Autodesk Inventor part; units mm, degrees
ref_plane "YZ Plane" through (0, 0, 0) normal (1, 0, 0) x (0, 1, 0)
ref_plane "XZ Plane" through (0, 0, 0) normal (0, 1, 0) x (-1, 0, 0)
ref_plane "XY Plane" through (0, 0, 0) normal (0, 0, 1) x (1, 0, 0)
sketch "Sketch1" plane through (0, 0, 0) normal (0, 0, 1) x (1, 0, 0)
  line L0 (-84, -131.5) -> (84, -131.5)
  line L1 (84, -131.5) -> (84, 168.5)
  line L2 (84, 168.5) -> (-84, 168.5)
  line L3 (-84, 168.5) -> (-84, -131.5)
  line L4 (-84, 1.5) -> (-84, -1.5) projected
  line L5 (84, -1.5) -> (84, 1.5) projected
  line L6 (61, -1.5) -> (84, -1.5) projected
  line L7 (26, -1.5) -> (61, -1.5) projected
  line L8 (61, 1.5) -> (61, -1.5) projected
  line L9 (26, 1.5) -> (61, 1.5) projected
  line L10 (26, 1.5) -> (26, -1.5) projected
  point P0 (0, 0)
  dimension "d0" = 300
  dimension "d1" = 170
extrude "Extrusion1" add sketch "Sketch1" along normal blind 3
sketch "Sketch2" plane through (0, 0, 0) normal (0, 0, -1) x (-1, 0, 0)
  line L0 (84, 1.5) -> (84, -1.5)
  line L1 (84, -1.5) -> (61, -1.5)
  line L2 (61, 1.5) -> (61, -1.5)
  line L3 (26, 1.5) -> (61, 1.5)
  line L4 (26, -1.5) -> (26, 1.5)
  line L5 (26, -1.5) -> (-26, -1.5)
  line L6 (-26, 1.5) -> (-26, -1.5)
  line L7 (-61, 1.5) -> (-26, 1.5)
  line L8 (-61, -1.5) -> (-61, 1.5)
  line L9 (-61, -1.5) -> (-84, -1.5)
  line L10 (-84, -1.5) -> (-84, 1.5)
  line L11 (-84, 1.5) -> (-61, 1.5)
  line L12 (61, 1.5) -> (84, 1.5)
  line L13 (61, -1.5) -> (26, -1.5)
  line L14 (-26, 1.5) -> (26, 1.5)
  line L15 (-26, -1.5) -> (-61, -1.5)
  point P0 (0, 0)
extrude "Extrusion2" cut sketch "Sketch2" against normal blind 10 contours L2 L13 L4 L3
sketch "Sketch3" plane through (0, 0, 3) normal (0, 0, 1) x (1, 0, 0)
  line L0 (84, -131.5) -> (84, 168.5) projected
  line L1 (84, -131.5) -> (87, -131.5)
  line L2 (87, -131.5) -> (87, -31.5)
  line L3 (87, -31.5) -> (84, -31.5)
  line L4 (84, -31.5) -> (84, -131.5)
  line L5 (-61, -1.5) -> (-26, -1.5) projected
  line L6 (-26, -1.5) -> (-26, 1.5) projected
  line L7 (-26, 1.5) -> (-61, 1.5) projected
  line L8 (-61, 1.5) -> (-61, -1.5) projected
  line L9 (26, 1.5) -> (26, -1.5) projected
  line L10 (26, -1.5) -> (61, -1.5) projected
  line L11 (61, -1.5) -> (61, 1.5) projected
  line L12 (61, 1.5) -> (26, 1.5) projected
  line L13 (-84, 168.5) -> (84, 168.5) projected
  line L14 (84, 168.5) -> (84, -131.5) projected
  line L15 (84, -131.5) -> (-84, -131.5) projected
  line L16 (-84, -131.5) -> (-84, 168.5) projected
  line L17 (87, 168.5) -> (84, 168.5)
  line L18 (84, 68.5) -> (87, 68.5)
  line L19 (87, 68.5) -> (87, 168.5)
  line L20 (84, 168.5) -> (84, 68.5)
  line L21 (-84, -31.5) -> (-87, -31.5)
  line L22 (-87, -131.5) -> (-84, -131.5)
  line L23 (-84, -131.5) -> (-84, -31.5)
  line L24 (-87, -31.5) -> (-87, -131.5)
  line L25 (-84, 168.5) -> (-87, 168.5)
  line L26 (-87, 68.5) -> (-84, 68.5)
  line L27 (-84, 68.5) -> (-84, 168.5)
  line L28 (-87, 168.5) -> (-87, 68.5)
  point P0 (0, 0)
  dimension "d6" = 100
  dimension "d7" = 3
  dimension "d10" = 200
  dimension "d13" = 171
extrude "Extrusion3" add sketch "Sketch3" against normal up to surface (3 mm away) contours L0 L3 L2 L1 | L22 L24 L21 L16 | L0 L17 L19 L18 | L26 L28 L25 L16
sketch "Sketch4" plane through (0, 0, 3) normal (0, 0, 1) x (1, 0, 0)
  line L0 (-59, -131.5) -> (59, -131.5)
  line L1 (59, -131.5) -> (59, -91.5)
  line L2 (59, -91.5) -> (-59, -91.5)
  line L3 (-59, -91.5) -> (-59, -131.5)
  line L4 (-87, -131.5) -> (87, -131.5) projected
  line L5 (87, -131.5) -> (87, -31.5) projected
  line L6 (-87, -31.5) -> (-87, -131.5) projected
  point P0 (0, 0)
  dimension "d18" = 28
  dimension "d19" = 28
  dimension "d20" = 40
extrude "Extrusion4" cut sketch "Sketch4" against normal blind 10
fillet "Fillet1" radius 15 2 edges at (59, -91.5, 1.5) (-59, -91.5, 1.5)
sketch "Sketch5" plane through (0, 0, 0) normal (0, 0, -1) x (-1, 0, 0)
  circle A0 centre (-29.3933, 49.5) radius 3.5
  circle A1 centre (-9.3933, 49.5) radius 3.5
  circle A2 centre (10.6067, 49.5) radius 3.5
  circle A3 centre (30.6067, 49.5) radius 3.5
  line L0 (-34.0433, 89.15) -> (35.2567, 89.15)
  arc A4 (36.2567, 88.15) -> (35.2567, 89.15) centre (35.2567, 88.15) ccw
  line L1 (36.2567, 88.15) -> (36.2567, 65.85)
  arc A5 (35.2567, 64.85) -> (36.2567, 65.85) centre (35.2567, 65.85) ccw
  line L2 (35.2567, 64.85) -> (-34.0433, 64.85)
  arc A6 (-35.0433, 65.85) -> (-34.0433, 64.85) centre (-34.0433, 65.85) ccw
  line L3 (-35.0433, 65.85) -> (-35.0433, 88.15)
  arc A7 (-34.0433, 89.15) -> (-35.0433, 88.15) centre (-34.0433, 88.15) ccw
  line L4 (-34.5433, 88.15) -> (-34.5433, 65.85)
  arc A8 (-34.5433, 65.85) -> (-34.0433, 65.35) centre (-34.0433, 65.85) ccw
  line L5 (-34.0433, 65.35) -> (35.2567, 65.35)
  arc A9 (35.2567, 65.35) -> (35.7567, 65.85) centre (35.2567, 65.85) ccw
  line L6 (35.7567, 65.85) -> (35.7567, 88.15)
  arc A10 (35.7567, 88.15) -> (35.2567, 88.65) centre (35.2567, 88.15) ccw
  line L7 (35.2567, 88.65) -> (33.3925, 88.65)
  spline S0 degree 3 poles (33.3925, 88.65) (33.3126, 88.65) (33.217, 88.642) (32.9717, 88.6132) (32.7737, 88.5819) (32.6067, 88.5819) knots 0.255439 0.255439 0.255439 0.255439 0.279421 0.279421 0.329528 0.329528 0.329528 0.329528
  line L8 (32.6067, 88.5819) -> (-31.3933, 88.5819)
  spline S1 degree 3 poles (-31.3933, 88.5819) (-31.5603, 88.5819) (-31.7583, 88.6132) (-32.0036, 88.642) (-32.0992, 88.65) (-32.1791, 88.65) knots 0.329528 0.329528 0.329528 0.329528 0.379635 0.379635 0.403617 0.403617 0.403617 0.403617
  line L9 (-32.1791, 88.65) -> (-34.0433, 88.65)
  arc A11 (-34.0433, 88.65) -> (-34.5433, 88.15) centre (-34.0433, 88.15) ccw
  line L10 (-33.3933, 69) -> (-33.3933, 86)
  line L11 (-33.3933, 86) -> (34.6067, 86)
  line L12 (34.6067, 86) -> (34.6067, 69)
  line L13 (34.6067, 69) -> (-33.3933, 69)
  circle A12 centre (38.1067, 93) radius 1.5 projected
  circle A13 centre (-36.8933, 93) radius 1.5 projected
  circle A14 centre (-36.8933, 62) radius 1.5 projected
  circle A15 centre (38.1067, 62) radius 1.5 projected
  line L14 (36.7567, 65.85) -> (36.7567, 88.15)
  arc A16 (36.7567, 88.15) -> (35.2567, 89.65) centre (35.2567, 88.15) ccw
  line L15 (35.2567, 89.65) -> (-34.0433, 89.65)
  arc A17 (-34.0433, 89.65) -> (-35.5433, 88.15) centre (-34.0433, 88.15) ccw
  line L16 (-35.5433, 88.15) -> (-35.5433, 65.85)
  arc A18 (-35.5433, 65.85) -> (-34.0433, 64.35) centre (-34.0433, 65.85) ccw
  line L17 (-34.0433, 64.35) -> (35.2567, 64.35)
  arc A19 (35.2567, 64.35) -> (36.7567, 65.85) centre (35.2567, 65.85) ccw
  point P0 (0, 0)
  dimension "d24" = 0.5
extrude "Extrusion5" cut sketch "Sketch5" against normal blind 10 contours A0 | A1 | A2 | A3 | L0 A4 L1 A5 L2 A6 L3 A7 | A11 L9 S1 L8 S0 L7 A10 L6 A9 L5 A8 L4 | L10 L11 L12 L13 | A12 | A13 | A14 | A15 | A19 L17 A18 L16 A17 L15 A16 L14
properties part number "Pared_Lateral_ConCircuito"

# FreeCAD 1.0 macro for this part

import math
import FreeCAD as App
import Part
import Sketcher


def edges_at(feature, points):
    """Names of the edges that pass closest to the given points."""
    edges = feature.Shape.Edges
    near = lambda p: min(range(len(edges)), key=lambda i: edges[i].distToShape(Part.Vertex(*p))[0])
    return sorted({f"Edge{near(p) + 1}" for p in points})


def add_polygon(sketch, points):
    """Adds a closed chain of lines whose ends are joined by coincident constraints."""
    first, n = sketch.GeometryCount, len(points)
    for a, b in zip(points, points[1:] + points[:1]):
        sketch.addGeometry(Part.LineSegment(App.Vector(*a, 0), App.Vector(*b, 0)), False)
    for i in range(n):
        sketch.addConstraint(Sketcher.Constraint("Coincident", first + i, 2, first + (i + 1) % n, 1))

doc = App.newDocument("Part")
params = doc.addObject("Spreadsheet::Sheet", "Params")
for row, (alias, value) in enumerate([
    ("sketch1_height", "300 mm"),
    ("sketch1_height2", "170 mm"),
    ("sketch1_width", "168 mm"),
    ("sketch1_width2", "35 mm"),
    ("sketch1_height3", "3 mm"),
    ("pad1_length", "3 mm"),
    ("sketch2_width", "35 mm"),
    ("sketch2_height", "3 mm"),
    ("pocket1_length", "10 mm"),
    ("sketch3_width", "3 mm"),
    ("sketch3_height", "100 mm"),
    ("pad2_length", "3 mm"),
    ("sketch4_height", "40 mm"),
    ("sketch4_width", "118 mm"),
    ("pocket2_length", "10 mm"),
    ("fillet_radius", "15 mm"),
    ("sketch5_diameter", "7 mm"),
    ("sketch5_diameter2", "3 mm"),
    ("sketch5_width", "69.3 mm"),
    ("sketch5_height", "22.3 mm"),
    ("pocket3_length", "10 mm"),
], start=1):
    params.set(f"A{row}", alias)
    params.set(f"B{row}", "=" + value)
    params.setAlias(f"B{row}", alias)

body = doc.addObject("PartDesign::Body", "Body")

sketch1 = body.newObject("Sketcher::SketchObject", "Sketch")
sketch1.AttachmentSupport = (doc.getObject("XY_Plane"), [""])
sketch1.MapMode = "FlatFace"
add_polygon(sketch1, [(-84, 168.5), (-84, -131.5), (84, -131.5), (84, -1.5), (84, 168.5)])
add_polygon(sketch1, [(61, 1.5), (61, -1.5), (26, -1.5), (26, 1.5)])
sketch1.addConstraint(Sketcher.Constraint("Vertical", 0))
sketch1.addConstraint(Sketcher.Constraint("Horizontal", 1))
sketch1.addConstraint(Sketcher.Constraint("Vertical", 2))
sketch1.addConstraint(Sketcher.Constraint("Vertical", 3))
sketch1.addConstraint(Sketcher.Constraint("Horizontal", 4))
sketch1.addConstraint(Sketcher.Constraint("Vertical", 5))
sketch1.addConstraint(Sketcher.Constraint("Horizontal", 6))
sketch1.addConstraint(Sketcher.Constraint("Vertical", 7))
sketch1.addConstraint(Sketcher.Constraint("Horizontal", 8))
sketch1.addConstraint(Sketcher.Constraint("Horizontal", 2, 2, 5, 2))
sketch1.addConstraint(Sketcher.Constraint("DistanceY", 0, 2, 0, 1, 300.0))
sketch1.addConstraint(Sketcher.Constraint("DistanceY", 3, 1, 3, 2, 170.0))
sketch1.addConstraint(Sketcher.Constraint("DistanceX", 1, 1, 1, 2, 168.0))
sketch1.addConstraint(Sketcher.Constraint("DistanceX", 6, 2, 6, 1, 35.0))
sketch1.addConstraint(Sketcher.Constraint("DistanceY", 5, 2, 5, 1, 3.0))
sketch1.addConstraint(Sketcher.Constraint("DistanceX", 0, 2, -1, 1, 84.0))
sketch1.addConstraint(Sketcher.Constraint("DistanceX", -1, 1, 5, 2, 61.0))
sketch1.addConstraint(Sketcher.Constraint("DistanceY", 0, 2, -1, 1, 131.5))
sketch1.setExpression("Constraints[19]", "Params.sketch1_height")
sketch1.setExpression("Constraints[20]", "Params.sketch1_height2")
sketch1.setExpression("Constraints[21]", "Params.sketch1_width")
sketch1.setExpression("Constraints[22]", "Params.sketch1_width2")
sketch1.setExpression("Constraints[23]", "Params.sketch1_height3")
pad1 = body.newObject("PartDesign::Pad", "Pad")
pad1.Profile = sketch1
pad1.setExpression("Length", "Params.pad1_length")

sketch2 = body.newObject("Sketcher::SketchObject", "Sketch001")
sketch2.AttachmentSupport = (doc.getObject("XY_Plane"), [""])
sketch2.MapMode = "FlatFace"
add_polygon(sketch2, [(-61, -1.5), (-61, 1.5), (-26, 1.5), (-26, -1.5)])
sketch2.addConstraint(Sketcher.Constraint("Vertical", 0))
sketch2.addConstraint(Sketcher.Constraint("Horizontal", 1))
sketch2.addConstraint(Sketcher.Constraint("Vertical", 2))
sketch2.addConstraint(Sketcher.Constraint("Horizontal", 3))
sketch2.addConstraint(Sketcher.Constraint("DistanceX", 1, 1, 1, 2, 35.0))
sketch2.addConstraint(Sketcher.Constraint("DistanceY", 0, 1, 0, 2, 3.0))
sketch2.addConstraint(Sketcher.Constraint("DistanceX", 0, 2, -1, 1, 61.0))
sketch2.addConstraint(Sketcher.Constraint("DistanceY", -1, 1, 0, 2, 1.5))
sketch2.setExpression("Constraints[8]", "Params.sketch2_width")
sketch2.setExpression("Constraints[9]", "Params.sketch2_height")
pocket1 = body.newObject("PartDesign::Pocket", "Pocket")
pocket1.Profile = sketch2
pocket1.setExpression("Length", "Params.pocket1_length")
pocket1.Reversed = True

sketch3 = body.newObject("Sketcher::SketchObject", "Sketch002")
sketch3.AttachmentSupport = (doc.getObject("XY_Plane"), [""])
sketch3.MapMode = "FlatFace"
sketch3.AttachmentOffset = App.Placement(App.Vector(0, 0, 3), App.Rotation())
add_polygon(sketch3, [(84, -31.5), (84, -131.5), (87, -131.5), (87, -31.5)])
add_polygon(sketch3, [(-87, -131.5), (-84, -131.5), (-84, -31.5), (-87, -31.5)])
add_polygon(sketch3, [(84, 168.5), (84, 68.5), (87, 68.5), (87, 168.5)])
add_polygon(sketch3, [(-87, 68.5), (-84, 68.5), (-84, 168.5), (-87, 168.5)])
sketch3.addConstraint(Sketcher.Constraint("Vertical", 0))
sketch3.addConstraint(Sketcher.Constraint("Horizontal", 1))
sketch3.addConstraint(Sketcher.Constraint("Vertical", 2))
sketch3.addConstraint(Sketcher.Constraint("Horizontal", 3))
sketch3.addConstraint(Sketcher.Constraint("Horizontal", 4))
sketch3.addConstraint(Sketcher.Constraint("Vertical", 5))
sketch3.addConstraint(Sketcher.Constraint("Horizontal", 6))
sketch3.addConstraint(Sketcher.Constraint("Vertical", 7))
sketch3.addConstraint(Sketcher.Constraint("Vertical", 8))
sketch3.addConstraint(Sketcher.Constraint("Horizontal", 9))
sketch3.addConstraint(Sketcher.Constraint("Vertical", 10))
sketch3.addConstraint(Sketcher.Constraint("Horizontal", 11))
sketch3.addConstraint(Sketcher.Constraint("Horizontal", 12))
sketch3.addConstraint(Sketcher.Constraint("Vertical", 13))
sketch3.addConstraint(Sketcher.Constraint("Horizontal", 14))
sketch3.addConstraint(Sketcher.Constraint("Vertical", 15))
sketch3.addConstraint(Sketcher.Constraint("Symmetric", 0, 2, 4, 2, -2))
sketch3.addConstraint(Sketcher.Constraint("Symmetric", 2, 2, 6, 2, -2))
sketch3.addConstraint(Sketcher.Constraint("Symmetric", 8, 2, 12, 2, -2))
sketch3.addConstraint(Sketcher.Constraint("Symmetric", 10, 2, 14, 2, -2))
sketch3.addConstraint(Sketcher.Constraint("Vertical", 3, 2, 8, 2))
sketch3.addConstraint(Sketcher.Constraint("Vertical", 2, 2, 9, 2))
sketch3.addConstraint(Sketcher.Constraint("Equal", 7, 8))
sketch3.addConstraint(Sketcher.Constraint("DistanceX", 1, 1, 1, 2, 3.0))
sketch3.addConstraint(Sketcher.Constraint("DistanceY", 0, 2, 0, 1, 100.0))
sketch3.addConstraint(Sketcher.Constraint("DistanceX", 4, 2, 1, 2, 171.0))
sketch3.addConstraint(Sketcher.Constraint("DistanceY", 3, 2, 8, 2, 100.0))
sketch3.addConstraint(Sketcher.Constraint("DistanceY", 0, 2, -1, 1, 131.5))
sketch3.setExpression("Constraints[39]", "Params.sketch3_width")
sketch3.setExpression("Constraints[40]", "Params.sketch3_height")
pad2 = body.newObject("PartDesign::Pad", "Pad001")
pad2.Profile = sketch3
pad2.setExpression("Length", "Params.pad2_length")
pad2.Reversed = True

sketch4 = body.newObject("Sketcher::SketchObject", "Sketch003")
sketch4.AttachmentSupport = (doc.getObject("XY_Plane"), [""])
sketch4.MapMode = "FlatFace"
sketch4.AttachmentOffset = App.Placement(App.Vector(0, 0, 3), App.Rotation())
add_polygon(sketch4, [(-59, -92), (-59, -132), (59, -132), (59, -92)])
sketch4.addConstraint(Sketcher.Constraint("Vertical", 0))
sketch4.addConstraint(Sketcher.Constraint("Horizontal", 1))
sketch4.addConstraint(Sketcher.Constraint("Vertical", 2))
sketch4.addConstraint(Sketcher.Constraint("Horizontal", 3))
sketch4.addConstraint(Sketcher.Constraint("DistanceY", 0, 2, 0, 1, 40.0))
sketch4.addConstraint(Sketcher.Constraint("DistanceX", 1, 1, 1, 2, 118.0))
sketch4.addConstraint(Sketcher.Constraint("DistanceX", 0, 2, -1, 1, 59.0))
sketch4.addConstraint(Sketcher.Constraint("DistanceY", 0, 2, -1, 1, 131.5))
sketch4.setExpression("Constraints[8]", "Params.sketch4_height")
sketch4.setExpression("Constraints[9]", "Params.sketch4_width")
pocket2 = body.newObject("PartDesign::Pocket", "Pocket001")
pocket2.Profile = sketch4
pocket2.setExpression("Length", "Params.pocket2_length")
doc.recompute()

fillet = body.newObject("PartDesign::Fillet", "Fillet")
fillet.Base = (pocket2, edges_at(pocket2, [(59, -91.5, 1.5), (-59, -91.5, 1.5)]))
fillet.setExpression("Radius", "Params.fillet_radius")

sketch5 = body.newObject("Sketcher::SketchObject", "Sketch004")
sketch5.AttachmentSupport = (doc.getObject("XY_Plane"), [""])
sketch5.MapMode = "FlatFace"
sketch5.addGeometry(Part.Circle(App.Vector(29.4, 49.5, 0), App.Vector(0, 0, 1), 3.5), False)
sketch5.addGeometry(Part.Circle(App.Vector(9.4, 49.5, 0), App.Vector(0, 0, 1), 3.5), False)
sketch5.addGeometry(Part.Circle(App.Vector(-10.6, 49.5, 0), App.Vector(0, 0, 1), 3.5), False)
sketch5.addGeometry(Part.Circle(App.Vector(-30.6, 49.5, 0), App.Vector(0, 0, 1), 3.5), False)
sketch5.addGeometry(Part.ArcOfCircle(Part.Circle(App.Vector(-35.3, 65.8, 0), App.Vector(0, 0, 1), 1.5), math.radians(180), math.radians(270)), False)
sketch5.addGeometry(Part.LineSegment(App.Vector(-36.8, 65.8, 0), App.Vector(-36.8, 88.2, 0)), False)
sketch5.addGeometry(Part.ArcOfCircle(Part.Circle(App.Vector(-35.3, 88.2, 0), App.Vector(0, 0, 1), 1.5), math.radians(90), math.radians(180)), False)
sketch5.addGeometry(Part.LineSegment(App.Vector(-35.3, 89.7, 0), App.Vector(34, 89.7, 0)), False)
sketch5.addGeometry(Part.ArcOfCircle(Part.Circle(App.Vector(34, 88.2, 0), App.Vector(0, 0, 1), 1.5), math.radians(0), math.radians(90)), False)
sketch5.addGeometry(Part.LineSegment(App.Vector(35.5, 88.2, 0), App.Vector(35.5, 65.8, 0)), False)
sketch5.addGeometry(Part.ArcOfCircle(Part.Circle(App.Vector(34, 65.8, 0), App.Vector(0, 0, 1), 1.5), math.radians(-90), math.radians(0)), False)
sketch5.addGeometry(Part.LineSegment(App.Vector(34, 64.3, 0), App.Vector(-35.3, 64.3, 0)), False)
sketch5.addGeometry(Part.Circle(App.Vector(-38.1, 93, 0), App.Vector(0, 0, 1), 1.5), False)
sketch5.addGeometry(Part.Circle(App.Vector(36.9, 93, 0), App.Vector(0, 0, 1), 1.5), False)
sketch5.addGeometry(Part.Circle(App.Vector(36.9, 62, 0), App.Vector(0, 0, 1), 1.5), False)
sketch5.addGeometry(Part.Circle(App.Vector(-38.1, 62, 0), App.Vector(0, 0, 1), 1.5), False)
sketch5.addConstraint(Sketcher.Constraint("Tangent", 4, 1, 5, 1))
sketch5.addConstraint(Sketcher.Constraint("Tangent", 5, 2, 6, 2))
sketch5.addConstraint(Sketcher.Constraint("Tangent", 6, 1, 7, 1))
sketch5.addConstraint(Sketcher.Constraint("Tangent", 7, 2, 8, 2))
sketch5.addConstraint(Sketcher.Constraint("Tangent", 8, 1, 9, 1))
sketch5.addConstraint(Sketcher.Constraint("Tangent", 9, 2, 10, 2))
sketch5.addConstraint(Sketcher.Constraint("Tangent", 10, 1, 11, 1))
sketch5.addConstraint(Sketcher.Constraint("Tangent", 11, 2, 4, 2))
sketch5.addConstraint(Sketcher.Constraint("Vertical", 5))
sketch5.addConstraint(Sketcher.Constraint("Horizontal", 7))
sketch5.addConstraint(Sketcher.Constraint("Vertical", 9))
sketch5.addConstraint(Sketcher.Constraint("Horizontal", 11))
sketch5.addConstraint(Sketcher.Constraint("Equal", 0, 1))
sketch5.addConstraint(Sketcher.Constraint("Equal", 1, 2))
sketch5.addConstraint(Sketcher.Constraint("Equal", 2, 3))
sketch5.addConstraint(Sketcher.Constraint("Equal", 4, 6))
sketch5.addConstraint(Sketcher.Constraint("Equal", 6, 8))
sketch5.addConstraint(Sketcher.Constraint("Equal", 8, 10))
sketch5.addConstraint(Sketcher.Constraint("Equal", 10, 12))
sketch5.addConstraint(Sketcher.Constraint("Equal", 12, 13))
sketch5.addConstraint(Sketcher.Constraint("Equal", 13, 14))
sketch5.addConstraint(Sketcher.Constraint("Equal", 14, 15))
sketch5.addConstraint(Sketcher.Constraint("Horizontal", 0, 3, 1, 3))
sketch5.addConstraint(Sketcher.Constraint("Horizontal", 1, 3, 2, 3))
sketch5.addConstraint(Sketcher.Constraint("Horizontal", 2, 3, 3, 3))
sketch5.addConstraint(Sketcher.Constraint("Horizontal", 12, 3, 13, 3))
sketch5.addConstraint(Sketcher.Constraint("Horizontal", 14, 3, 15, 3))
sketch5.addConstraint(Sketcher.Constraint("Vertical", 13, 3, 14, 3))
sketch5.addConstraint(Sketcher.Constraint("Vertical", 12, 3, 15, 3))
sketch5.addConstraint(Sketcher.Constraint("Diameter", 0, 7.0))
sketch5.addConstraint(Sketcher.Constraint("Diameter", 12, 3.0))
sketch5.addConstraint(Sketcher.Constraint("DistanceX", 7, 1, 7, 2, 69.3))
sketch5.addConstraint(Sketcher.Constraint("DistanceY", 5, 1, 5, 2, 22.3))
sketch5.addConstraint(Sketcher.Constraint("DistanceY", -1, 1, 12, 3, 93.0))
sketch5.addConstraint(Sketcher.Constraint("DistanceY", -1, 1, 14, 3, 62.0))
sketch5.addConstraint(Sketcher.Constraint("DistanceX", 1, 3, 0, 3, 20.0))
sketch5.addConstraint(Sketcher.Constraint("DistanceX", 2, 3, 1, 3, 20.0))
sketch5.addConstraint(Sketcher.Constraint("DistanceX", 3, 3, 2, 3, 20.0))
sketch5.addConstraint(Sketcher.Constraint("DistanceY", -1, 1, 0, 3, 49.5))
sketch5.addConstraint(Sketcher.Constraint("DistanceX", 12, 3, 3, 3, 7.5))
sketch5.addConstraint(Sketcher.Constraint("DistanceX", 0, 3, 13, 3, 7.5))
sketch5.addConstraint(Sketcher.Constraint("DistanceY", -1, 1, 4, 3, 65.85))
sketch5.addConstraint(Sketcher.Constraint("DistanceX", 4, 3, 3, 3, 4.65))
sketch5.addConstraint(Sketcher.Constraint("DistanceX", -1, 1, 0, 3, 29.3933))
sketch5.setExpression("Constraints[29]", "Params.sketch5_diameter")
sketch5.setExpression("Constraints[30]", "Params.sketch5_diameter2")
sketch5.setExpression("Constraints[31]", "Params.sketch5_width")
sketch5.setExpression("Constraints[32]", "Params.sketch5_height")
pocket3 = body.newObject("PartDesign::Pocket", "Pocket002")
pocket3.Profile = sketch5
pocket3.setExpression("Length", "Params.pocket3_length")
pocket3.Reversed = True

doc.recompute()
